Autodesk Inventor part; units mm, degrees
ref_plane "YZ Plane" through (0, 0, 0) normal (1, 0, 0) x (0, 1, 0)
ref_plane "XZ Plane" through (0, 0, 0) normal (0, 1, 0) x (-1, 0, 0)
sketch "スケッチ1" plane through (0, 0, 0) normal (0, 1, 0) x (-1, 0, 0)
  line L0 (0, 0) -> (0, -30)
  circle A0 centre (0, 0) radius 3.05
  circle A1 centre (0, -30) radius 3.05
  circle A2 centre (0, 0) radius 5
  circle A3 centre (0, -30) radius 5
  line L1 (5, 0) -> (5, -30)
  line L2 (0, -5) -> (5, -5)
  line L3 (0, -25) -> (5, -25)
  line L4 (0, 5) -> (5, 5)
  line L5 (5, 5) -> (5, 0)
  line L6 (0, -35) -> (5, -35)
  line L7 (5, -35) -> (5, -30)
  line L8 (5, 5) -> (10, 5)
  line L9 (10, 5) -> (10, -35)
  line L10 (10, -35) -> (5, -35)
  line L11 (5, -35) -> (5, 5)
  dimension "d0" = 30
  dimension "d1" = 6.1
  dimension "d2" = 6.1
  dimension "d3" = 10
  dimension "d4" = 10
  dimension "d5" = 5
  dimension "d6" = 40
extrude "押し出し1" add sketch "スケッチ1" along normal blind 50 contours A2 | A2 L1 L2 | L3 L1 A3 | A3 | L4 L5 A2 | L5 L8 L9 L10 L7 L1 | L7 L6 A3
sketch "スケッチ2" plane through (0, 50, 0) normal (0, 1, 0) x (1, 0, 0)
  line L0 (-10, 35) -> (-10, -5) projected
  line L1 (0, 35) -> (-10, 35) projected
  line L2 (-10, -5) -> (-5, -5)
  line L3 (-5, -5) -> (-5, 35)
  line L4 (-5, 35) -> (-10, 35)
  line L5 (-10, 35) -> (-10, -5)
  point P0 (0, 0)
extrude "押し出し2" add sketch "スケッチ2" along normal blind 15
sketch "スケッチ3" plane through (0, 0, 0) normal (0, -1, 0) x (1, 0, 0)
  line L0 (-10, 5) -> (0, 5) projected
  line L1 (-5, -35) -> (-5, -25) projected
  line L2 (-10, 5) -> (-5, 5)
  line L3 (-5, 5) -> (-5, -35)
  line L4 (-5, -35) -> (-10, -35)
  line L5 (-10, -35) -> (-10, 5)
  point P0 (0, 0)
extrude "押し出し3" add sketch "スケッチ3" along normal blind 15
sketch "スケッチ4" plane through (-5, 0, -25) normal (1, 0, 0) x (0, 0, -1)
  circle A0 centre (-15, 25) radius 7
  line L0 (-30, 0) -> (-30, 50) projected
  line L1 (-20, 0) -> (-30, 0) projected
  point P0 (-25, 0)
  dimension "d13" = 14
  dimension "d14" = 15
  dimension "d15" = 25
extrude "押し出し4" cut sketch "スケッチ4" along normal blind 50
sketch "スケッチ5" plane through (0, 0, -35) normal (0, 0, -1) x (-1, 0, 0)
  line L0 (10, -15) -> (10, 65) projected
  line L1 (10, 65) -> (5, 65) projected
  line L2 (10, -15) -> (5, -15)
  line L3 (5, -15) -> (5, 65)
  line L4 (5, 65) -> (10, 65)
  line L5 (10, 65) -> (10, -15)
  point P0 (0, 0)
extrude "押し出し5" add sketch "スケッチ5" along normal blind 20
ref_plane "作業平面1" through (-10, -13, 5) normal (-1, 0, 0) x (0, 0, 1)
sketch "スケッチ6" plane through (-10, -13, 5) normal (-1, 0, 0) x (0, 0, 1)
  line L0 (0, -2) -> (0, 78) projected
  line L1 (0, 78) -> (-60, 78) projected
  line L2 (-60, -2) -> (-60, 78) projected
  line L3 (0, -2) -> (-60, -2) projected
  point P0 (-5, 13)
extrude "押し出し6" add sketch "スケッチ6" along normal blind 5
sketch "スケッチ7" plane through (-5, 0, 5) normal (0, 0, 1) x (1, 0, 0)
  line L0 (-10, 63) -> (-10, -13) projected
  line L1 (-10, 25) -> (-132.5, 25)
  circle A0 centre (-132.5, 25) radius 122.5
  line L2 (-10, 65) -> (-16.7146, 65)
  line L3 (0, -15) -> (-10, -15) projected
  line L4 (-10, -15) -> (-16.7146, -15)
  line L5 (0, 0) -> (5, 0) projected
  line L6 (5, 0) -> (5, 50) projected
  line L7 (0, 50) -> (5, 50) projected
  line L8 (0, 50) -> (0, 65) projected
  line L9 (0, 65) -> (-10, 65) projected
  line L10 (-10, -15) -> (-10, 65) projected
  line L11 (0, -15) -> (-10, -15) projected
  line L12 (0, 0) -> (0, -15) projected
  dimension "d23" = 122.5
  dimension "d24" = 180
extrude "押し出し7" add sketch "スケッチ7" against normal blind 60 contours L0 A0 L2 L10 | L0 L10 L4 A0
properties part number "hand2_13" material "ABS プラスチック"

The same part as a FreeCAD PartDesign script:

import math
import FreeCAD as App
import Part
import Sketcher

doc = App.newDocument("Part")
body = doc.addObject("PartDesign::Body", "Body")

# Sketch on XZ plane
sketch1 = doc.addObject("Sketcher::SketchObject", "Sketch")
body.addObject(sketch1)
sketch1.AttachmentSupport = (doc.XZ_Plane, [""])
sketch1.MapMode = "FlatFace"
sketch1.addGeometry([
    Part.ArcOfCircle(Part.Circle(App.Vector(0, 0, 0), App.Vector(0, 0, 1), 5), math.radians(-90), math.radians(90)),  # 0
    Part.LineSegment(App.Vector(0, -5, 0), App.Vector(-5, -5, 0)),  # 1
    Part.LineSegment(App.Vector(-5, -5, 0), App.Vector(-5, -25, 0)),  # 2
    Part.LineSegment(App.Vector(-5, -25, 0), App.Vector(0, -25, 0)),  # 3
    Part.ArcOfCircle(Part.Circle(App.Vector(0, -30, 0), App.Vector(0, 0, 1), 5), math.radians(-90), math.radians(90)),  # 4
    Part.LineSegment(App.Vector(0, -35, 0), App.Vector(-10, -35, 0)),  # 5
    Part.LineSegment(App.Vector(-10, -35, 0), App.Vector(-10, 5, 0)),  # 6
    Part.LineSegment(App.Vector(-10, 5, 0), App.Vector(0, 5, 0)),  # 7
    Part.Circle(App.Vector(0, 0, 0), App.Vector(0, 0, 1), 3),  # 8
    Part.Circle(App.Vector(0, -30, 0), App.Vector(0, 0, 1), 3),  # 9
], False)
sketch1.addConstraint([
    Sketcher.Constraint("Tangent", 0, 1, 1, 1),
    Sketcher.Constraint("Coincident", 1, 2, 2, 1),
    Sketcher.Constraint("Coincident", 2, 2, 3, 1),
    Sketcher.Constraint("Tangent", 3, 2, 4, 2),
    Sketcher.Constraint("Tangent", 4, 1, 5, 1),
    Sketcher.Constraint("Coincident", 5, 2, 6, 1),
    Sketcher.Constraint("Coincident", 6, 2, 7, 1),
    Sketcher.Constraint("Tangent", 7, 2, 0, 2),
    Sketcher.Constraint("Horizontal", 1),
    Sketcher.Constraint("Vertical", 2),
    Sketcher.Constraint("Horizontal", 3),
    Sketcher.Constraint("Horizontal", 5),
    Sketcher.Constraint("Vertical", 6),
    Sketcher.Constraint("Horizontal", 7),
    Sketcher.Constraint("Coincident", 0, 3, -1, 1),
    Sketcher.Constraint("Coincident", 8, 3, -1, 1),
    Sketcher.Constraint("Coincident", 9, 3, 4, 3),
    Sketcher.Constraint("Equal", 0, 4),
    Sketcher.Constraint("Equal", 8, 9),
    Sketcher.Constraint("PointOnObject", 4, 3, -2),
    Sketcher.Constraint("Radius", 0, 5.0),
    Sketcher.Constraint("Diameter", 8, 6.1),
    Sketcher.Constraint("DistanceX", 1, 2, 1, 1, 5.0),
    Sketcher.Constraint("DistanceX", 5, 2, 5, 1, 10.0),
    Sketcher.Constraint("DistanceY", 6, 1, 6, 2, 40.0),
])
pad1 = doc.addObject("PartDesign::Pad", "Pad")
body.addObject(pad1)
pad1.Profile = sketch1
pad1.Length = 50
pad1.Reversed = True

# Sketch on XZ plane
sketch2 = doc.addObject("Sketcher::SketchObject", "Sketch001")
body.addObject(sketch2)
sketch2.AttachmentSupport = (doc.XZ_Plane, [""])
sketch2.MapMode = "FlatFace"
sketch2.AttachmentOffset = App.Placement(App.Vector(0, 0, -50), App.Rotation())
sketch2.addGeometry([
    Part.LineSegment(App.Vector(-5, -35, 0), App.Vector(-10, -35, 0)),
    Part.LineSegment(App.Vector(-10, -35, 0), App.Vector(-10, 5, 0)),
    Part.LineSegment(App.Vector(-10, 5, 0), App.Vector(-5, 5, 0)),
    Part.LineSegment(App.Vector(-5, 5, 0), App.Vector(-5, -35, 0)),
], False)
sketch2.addConstraint([
    Sketcher.Constraint("Coincident", 0, 2, 1, 1),
    Sketcher.Constraint("Coincident", 1, 2, 2, 1),
    Sketcher.Constraint("Coincident", 2, 2, 3, 1),
    Sketcher.Constraint("Coincident", 3, 2, 0, 1),
    Sketcher.Constraint("Horizontal", 0),
    Sketcher.Constraint("Vertical", 1),
    Sketcher.Constraint("Horizontal", 2),
    Sketcher.Constraint("Vertical", 3),
    Sketcher.Constraint("DistanceX", 0, 2, 0, 1, 5.0),
    Sketcher.Constraint("DistanceY", 1, 1, 1, 2, 40.0),
    Sketcher.Constraint("DistanceX", 0, 2, -1, 1, 10.0),
    Sketcher.Constraint("DistanceY", 0, 2, -1, 1, 35.0),
])
pad2 = doc.addObject("PartDesign::Pad", "Pad001")
body.addObject(pad2)
pad2.Profile = sketch2
pad2.Length = 15
pad2.Reversed = True

# Sketch on XZ plane
sketch3 = doc.addObject("Sketcher::SketchObject", "Sketch002")
body.addObject(sketch3)
sketch3.AttachmentSupport = (doc.XZ_Plane, [""])
sketch3.MapMode = "FlatFace"
sketch3.addGeometry([
    Part.LineSegment(App.Vector(-5, 5, 0), App.Vector(-10, 5, 0)),
    Part.LineSegment(App.Vector(-10, 5, 0), App.Vector(-10, -35, 0)),
    Part.LineSegment(App.Vector(-10, -35, 0), App.Vector(-5, -35, 0)),
    Part.LineSegment(App.Vector(-5, -35, 0), App.Vector(-5, 5, 0)),
], False)
sketch3.addConstraint([
    Sketcher.Constraint("Coincident", 0, 2, 1, 1),
    Sketcher.Constraint("Coincident", 1, 2, 2, 1),
    Sketcher.Constraint("Coincident", 2, 2, 3, 1),
    Sketcher.Constraint("Coincident", 3, 2, 0, 1),
    Sketcher.Constraint("Horizontal", 0),
    Sketcher.Constraint("Vertical", 1),
    Sketcher.Constraint("Horizontal", 2),
    Sketcher.Constraint("Vertical", 3),
    Sketcher.Constraint("DistanceX", 0, 2, 0, 1, 5.0),
    Sketcher.Constraint("DistanceY", 1, 2, 1, 1, 40.0),
    Sketcher.Constraint("DistanceX", 0, 2, -1, 1, 10.0),
    Sketcher.Constraint("DistanceY", -1, 1, 0, 2, 5.0),
])
pad3 = doc.addObject("PartDesign::Pad", "Pad002")
body.addObject(pad3)
pad3.Profile = sketch3
pad3.Length = 15

# Sketch on YZ plane
sketch4 = doc.addObject("Sketcher::SketchObject", "Sketch003")
body.addObject(sketch4)
sketch4.AttachmentSupport = (doc.YZ_Plane, [""])
sketch4.MapMode = "FlatFace"
sketch4.AttachmentOffset = App.Placement(App.Vector(0, 0, -5), App.Rotation())
sketch4.addGeometry(Part.Circle(App.Vector(25, -10, 0), App.Vector(0, 0, 1), 7), False)
sketch4.addConstraint([
    Sketcher.Constraint("Diameter", 0, 14.0),
    Sketcher.Constraint("DistanceX", -1, 1, 0, 3, 25.0),
    Sketcher.Constraint("DistanceY", 0, 3, -1, 1, 10.0),
])
pocket1 = doc.addObject("PartDesign::Pocket", "Pocket")
body.addObject(pocket1)
pocket1.Profile = sketch4
pocket1.Length = 50
pocket1.Reversed = True

# Sketch on XY plane
sketch5 = doc.addObject("Sketcher::SketchObject", "Sketch004")
body.addObject(sketch5)
sketch5.AttachmentSupport = (doc.XY_Plane, [""])
sketch5.MapMode = "FlatFace"
sketch5.AttachmentOffset = App.Placement(App.Vector(0, 0, -35), App.Rotation())
sketch5.addGeometry([
    Part.LineSegment(App.Vector(-5, -15, 0), App.Vector(-10, -15, 0)),
    Part.LineSegment(App.Vector(-10, -15, 0), App.Vector(-10, 65, 0)),
    Part.LineSegment(App.Vector(-10, 65, 0), App.Vector(-5, 65, 0)),
    Part.LineSegment(App.Vector(-5, 65, 0), App.Vector(-5, -15, 0)),
], False)
sketch5.addConstraint([
    Sketcher.Constraint("Coincident", 0, 2, 1, 1),
    Sketcher.Constraint("Coincident", 1, 2, 2, 1),
    Sketcher.Constraint("Coincident", 2, 2, 3, 1),
    Sketcher.Constraint("Coincident", 3, 2, 0, 1),
    Sketcher.Constraint("Horizontal", 0),
    Sketcher.Constraint("Vertical", 1),
    Sketcher.Constraint("Horizontal", 2),
    Sketcher.Constraint("Vertical", 3),
    Sketcher.Constraint("DistanceX", 0, 2, 0, 1, 5.0),
    Sketcher.Constraint("DistanceY", 1, 1, 1, 2, 80.0),
    Sketcher.Constraint("DistanceX", 0, 2, -1, 1, 10.0),
    Sketcher.Constraint("DistanceY", 0, 2, -1, 1, 15.0),
])
pad4 = doc.addObject("PartDesign::Pad", "Pad003")
body.addObject(pad4)
pad4.Profile = sketch5
pad4.Length = 20
pad4.Reversed = True

# Sketch on YZ plane
sketch6 = doc.addObject("Sketcher::SketchObject", "Sketch005")
body.addObject(sketch6)
sketch6.AttachmentSupport = (doc.YZ_Plane, [""])
sketch6.MapMode = "FlatFace"
sketch6.AttachmentOffset = App.Placement(App.Vector(0, 0, -10), App.Rotation())
sketch6.addGeometry([
    Part.LineSegment(App.Vector(-15, -55, 0), App.Vector(-15, 5, 0)),
    Part.LineSegment(App.Vector(-15, 5, 0), App.Vector(65, 5, 0)),
    Part.LineSegment(App.Vector(65, 5, 0), App.Vector(65, -55, 0)),
    Part.LineSegment(App.Vector(65, -55, 0), App.Vector(-15, -55, 0)),
], False)
sketch6.addConstraint([
    Sketcher.Constraint("Coincident", 0, 2, 1, 1),
    Sketcher.Constraint("Coincident", 1, 2, 2, 1),
    Sketcher.Constraint("Coincident", 2, 2, 3, 1),
    Sketcher.Constraint("Coincident", 3, 2, 0, 1),
    Sketcher.Constraint("Vertical", 0),
    Sketcher.Constraint("Horizontal", 1),
    Sketcher.Constraint("Vertical", 2),
    Sketcher.Constraint("Horizontal", 3),
    Sketcher.Constraint("DistanceX", 1, 1, 1, 2, 80.0),
    Sketcher.Constraint("DistanceY", 0, 1, 0, 2, 60.0),
    Sketcher.Constraint("DistanceX", 0, 2, -1, 1, 15.0),
    Sketcher.Constraint("DistanceY", -1, 1, 0, 2, 5.0),
])
pad5 = doc.addObject("PartDesign::Pad", "Pad004")
body.addObject(pad5)
pad5.Profile = sketch6
pad5.Length = 5
pad5.Reversed = True

# Sketch on XY plane
sketch7 = doc.addObject("Sketcher::SketchObject", "Sketch006")
body.addObject(sketch7)
sketch7.AttachmentSupport = (doc.XY_Plane, [""])
sketch7.MapMode = "FlatFace"
sketch7.AttachmentOffset = App.Placement(App.Vector(0, 0, 5), App.Rotation())
sketch7.addGeometry([
    Part.LineSegment(App.Vector(-15, 25, 0), App.Vector(-15, 65, 0)),  # 0
    Part.LineSegment(App.Vector(-15, 65, 0), App.Vector(-22, 65, 0)),  # 1
    Part.ArcOfCircle(Part.Circle(App.Vector(-138, 25, 0), App.Vector(0, 0, 1), 122), math.radians(0), math.radians(19.06)),  # 2
    Part.LineSegment(App.Vector(-15, -15, 0), App.Vector(-15, 25, 0)),  # 3
    Part.ArcOfCircle(Part.Circle(App.Vector(-138, 25, 0), App.Vector(0, 0, 1), 122), math.radians(-19.06), math.radians(0)),  # 4
    Part.LineSegment(App.Vector(-22, -15, 0), App.Vector(-15, -15, 0)),  # 5
], False)
sketch7.addConstraint([
    Sketcher.Constraint("Coincident", 0, 2, 1, 1),
    Sketcher.Constraint("Coincident", 1, 2, 2, 2),
    Sketcher.Constraint("Tangent", 2, 1, 0, 1),
    Sketcher.Constraint("Tangent", 3, 2, 4, 2),
    Sketcher.Constraint("Coincident", 4, 1, 5, 1),
    Sketcher.Constraint("Coincident", 5, 2, 3, 1),
    Sketcher.Constraint("Vertical", 0),
    Sketcher.Constraint("Horizontal", 1),
    Sketcher.Constraint("Vertical", 3),
    Sketcher.Constraint("Horizontal", 5),
    Sketcher.Constraint("Coincident", 4, 3, 2, 3),
    Sketcher.Constraint("Equal", 2, 4),
    Sketcher.Constraint("Vertical", 1, 2, 4, 1),
    Sketcher.Constraint("Radius", 2, 122.5),
    Sketcher.Constraint("DistanceY", 0, 1, 0, 2, 40.0),
    Sketcher.Constraint("DistanceY", -1, 1, 2, 3, 25.0),
    Sketcher.Constraint("DistanceX", 0, 2, -1, 1, 15.0),
])
pad6 = doc.addObject("PartDesign::Pad", "Pad005")
body.addObject(pad6)
pad6.Profile = sketch7
pad6.Length = 60
pad6.Reversed = True

doc.recompute()
